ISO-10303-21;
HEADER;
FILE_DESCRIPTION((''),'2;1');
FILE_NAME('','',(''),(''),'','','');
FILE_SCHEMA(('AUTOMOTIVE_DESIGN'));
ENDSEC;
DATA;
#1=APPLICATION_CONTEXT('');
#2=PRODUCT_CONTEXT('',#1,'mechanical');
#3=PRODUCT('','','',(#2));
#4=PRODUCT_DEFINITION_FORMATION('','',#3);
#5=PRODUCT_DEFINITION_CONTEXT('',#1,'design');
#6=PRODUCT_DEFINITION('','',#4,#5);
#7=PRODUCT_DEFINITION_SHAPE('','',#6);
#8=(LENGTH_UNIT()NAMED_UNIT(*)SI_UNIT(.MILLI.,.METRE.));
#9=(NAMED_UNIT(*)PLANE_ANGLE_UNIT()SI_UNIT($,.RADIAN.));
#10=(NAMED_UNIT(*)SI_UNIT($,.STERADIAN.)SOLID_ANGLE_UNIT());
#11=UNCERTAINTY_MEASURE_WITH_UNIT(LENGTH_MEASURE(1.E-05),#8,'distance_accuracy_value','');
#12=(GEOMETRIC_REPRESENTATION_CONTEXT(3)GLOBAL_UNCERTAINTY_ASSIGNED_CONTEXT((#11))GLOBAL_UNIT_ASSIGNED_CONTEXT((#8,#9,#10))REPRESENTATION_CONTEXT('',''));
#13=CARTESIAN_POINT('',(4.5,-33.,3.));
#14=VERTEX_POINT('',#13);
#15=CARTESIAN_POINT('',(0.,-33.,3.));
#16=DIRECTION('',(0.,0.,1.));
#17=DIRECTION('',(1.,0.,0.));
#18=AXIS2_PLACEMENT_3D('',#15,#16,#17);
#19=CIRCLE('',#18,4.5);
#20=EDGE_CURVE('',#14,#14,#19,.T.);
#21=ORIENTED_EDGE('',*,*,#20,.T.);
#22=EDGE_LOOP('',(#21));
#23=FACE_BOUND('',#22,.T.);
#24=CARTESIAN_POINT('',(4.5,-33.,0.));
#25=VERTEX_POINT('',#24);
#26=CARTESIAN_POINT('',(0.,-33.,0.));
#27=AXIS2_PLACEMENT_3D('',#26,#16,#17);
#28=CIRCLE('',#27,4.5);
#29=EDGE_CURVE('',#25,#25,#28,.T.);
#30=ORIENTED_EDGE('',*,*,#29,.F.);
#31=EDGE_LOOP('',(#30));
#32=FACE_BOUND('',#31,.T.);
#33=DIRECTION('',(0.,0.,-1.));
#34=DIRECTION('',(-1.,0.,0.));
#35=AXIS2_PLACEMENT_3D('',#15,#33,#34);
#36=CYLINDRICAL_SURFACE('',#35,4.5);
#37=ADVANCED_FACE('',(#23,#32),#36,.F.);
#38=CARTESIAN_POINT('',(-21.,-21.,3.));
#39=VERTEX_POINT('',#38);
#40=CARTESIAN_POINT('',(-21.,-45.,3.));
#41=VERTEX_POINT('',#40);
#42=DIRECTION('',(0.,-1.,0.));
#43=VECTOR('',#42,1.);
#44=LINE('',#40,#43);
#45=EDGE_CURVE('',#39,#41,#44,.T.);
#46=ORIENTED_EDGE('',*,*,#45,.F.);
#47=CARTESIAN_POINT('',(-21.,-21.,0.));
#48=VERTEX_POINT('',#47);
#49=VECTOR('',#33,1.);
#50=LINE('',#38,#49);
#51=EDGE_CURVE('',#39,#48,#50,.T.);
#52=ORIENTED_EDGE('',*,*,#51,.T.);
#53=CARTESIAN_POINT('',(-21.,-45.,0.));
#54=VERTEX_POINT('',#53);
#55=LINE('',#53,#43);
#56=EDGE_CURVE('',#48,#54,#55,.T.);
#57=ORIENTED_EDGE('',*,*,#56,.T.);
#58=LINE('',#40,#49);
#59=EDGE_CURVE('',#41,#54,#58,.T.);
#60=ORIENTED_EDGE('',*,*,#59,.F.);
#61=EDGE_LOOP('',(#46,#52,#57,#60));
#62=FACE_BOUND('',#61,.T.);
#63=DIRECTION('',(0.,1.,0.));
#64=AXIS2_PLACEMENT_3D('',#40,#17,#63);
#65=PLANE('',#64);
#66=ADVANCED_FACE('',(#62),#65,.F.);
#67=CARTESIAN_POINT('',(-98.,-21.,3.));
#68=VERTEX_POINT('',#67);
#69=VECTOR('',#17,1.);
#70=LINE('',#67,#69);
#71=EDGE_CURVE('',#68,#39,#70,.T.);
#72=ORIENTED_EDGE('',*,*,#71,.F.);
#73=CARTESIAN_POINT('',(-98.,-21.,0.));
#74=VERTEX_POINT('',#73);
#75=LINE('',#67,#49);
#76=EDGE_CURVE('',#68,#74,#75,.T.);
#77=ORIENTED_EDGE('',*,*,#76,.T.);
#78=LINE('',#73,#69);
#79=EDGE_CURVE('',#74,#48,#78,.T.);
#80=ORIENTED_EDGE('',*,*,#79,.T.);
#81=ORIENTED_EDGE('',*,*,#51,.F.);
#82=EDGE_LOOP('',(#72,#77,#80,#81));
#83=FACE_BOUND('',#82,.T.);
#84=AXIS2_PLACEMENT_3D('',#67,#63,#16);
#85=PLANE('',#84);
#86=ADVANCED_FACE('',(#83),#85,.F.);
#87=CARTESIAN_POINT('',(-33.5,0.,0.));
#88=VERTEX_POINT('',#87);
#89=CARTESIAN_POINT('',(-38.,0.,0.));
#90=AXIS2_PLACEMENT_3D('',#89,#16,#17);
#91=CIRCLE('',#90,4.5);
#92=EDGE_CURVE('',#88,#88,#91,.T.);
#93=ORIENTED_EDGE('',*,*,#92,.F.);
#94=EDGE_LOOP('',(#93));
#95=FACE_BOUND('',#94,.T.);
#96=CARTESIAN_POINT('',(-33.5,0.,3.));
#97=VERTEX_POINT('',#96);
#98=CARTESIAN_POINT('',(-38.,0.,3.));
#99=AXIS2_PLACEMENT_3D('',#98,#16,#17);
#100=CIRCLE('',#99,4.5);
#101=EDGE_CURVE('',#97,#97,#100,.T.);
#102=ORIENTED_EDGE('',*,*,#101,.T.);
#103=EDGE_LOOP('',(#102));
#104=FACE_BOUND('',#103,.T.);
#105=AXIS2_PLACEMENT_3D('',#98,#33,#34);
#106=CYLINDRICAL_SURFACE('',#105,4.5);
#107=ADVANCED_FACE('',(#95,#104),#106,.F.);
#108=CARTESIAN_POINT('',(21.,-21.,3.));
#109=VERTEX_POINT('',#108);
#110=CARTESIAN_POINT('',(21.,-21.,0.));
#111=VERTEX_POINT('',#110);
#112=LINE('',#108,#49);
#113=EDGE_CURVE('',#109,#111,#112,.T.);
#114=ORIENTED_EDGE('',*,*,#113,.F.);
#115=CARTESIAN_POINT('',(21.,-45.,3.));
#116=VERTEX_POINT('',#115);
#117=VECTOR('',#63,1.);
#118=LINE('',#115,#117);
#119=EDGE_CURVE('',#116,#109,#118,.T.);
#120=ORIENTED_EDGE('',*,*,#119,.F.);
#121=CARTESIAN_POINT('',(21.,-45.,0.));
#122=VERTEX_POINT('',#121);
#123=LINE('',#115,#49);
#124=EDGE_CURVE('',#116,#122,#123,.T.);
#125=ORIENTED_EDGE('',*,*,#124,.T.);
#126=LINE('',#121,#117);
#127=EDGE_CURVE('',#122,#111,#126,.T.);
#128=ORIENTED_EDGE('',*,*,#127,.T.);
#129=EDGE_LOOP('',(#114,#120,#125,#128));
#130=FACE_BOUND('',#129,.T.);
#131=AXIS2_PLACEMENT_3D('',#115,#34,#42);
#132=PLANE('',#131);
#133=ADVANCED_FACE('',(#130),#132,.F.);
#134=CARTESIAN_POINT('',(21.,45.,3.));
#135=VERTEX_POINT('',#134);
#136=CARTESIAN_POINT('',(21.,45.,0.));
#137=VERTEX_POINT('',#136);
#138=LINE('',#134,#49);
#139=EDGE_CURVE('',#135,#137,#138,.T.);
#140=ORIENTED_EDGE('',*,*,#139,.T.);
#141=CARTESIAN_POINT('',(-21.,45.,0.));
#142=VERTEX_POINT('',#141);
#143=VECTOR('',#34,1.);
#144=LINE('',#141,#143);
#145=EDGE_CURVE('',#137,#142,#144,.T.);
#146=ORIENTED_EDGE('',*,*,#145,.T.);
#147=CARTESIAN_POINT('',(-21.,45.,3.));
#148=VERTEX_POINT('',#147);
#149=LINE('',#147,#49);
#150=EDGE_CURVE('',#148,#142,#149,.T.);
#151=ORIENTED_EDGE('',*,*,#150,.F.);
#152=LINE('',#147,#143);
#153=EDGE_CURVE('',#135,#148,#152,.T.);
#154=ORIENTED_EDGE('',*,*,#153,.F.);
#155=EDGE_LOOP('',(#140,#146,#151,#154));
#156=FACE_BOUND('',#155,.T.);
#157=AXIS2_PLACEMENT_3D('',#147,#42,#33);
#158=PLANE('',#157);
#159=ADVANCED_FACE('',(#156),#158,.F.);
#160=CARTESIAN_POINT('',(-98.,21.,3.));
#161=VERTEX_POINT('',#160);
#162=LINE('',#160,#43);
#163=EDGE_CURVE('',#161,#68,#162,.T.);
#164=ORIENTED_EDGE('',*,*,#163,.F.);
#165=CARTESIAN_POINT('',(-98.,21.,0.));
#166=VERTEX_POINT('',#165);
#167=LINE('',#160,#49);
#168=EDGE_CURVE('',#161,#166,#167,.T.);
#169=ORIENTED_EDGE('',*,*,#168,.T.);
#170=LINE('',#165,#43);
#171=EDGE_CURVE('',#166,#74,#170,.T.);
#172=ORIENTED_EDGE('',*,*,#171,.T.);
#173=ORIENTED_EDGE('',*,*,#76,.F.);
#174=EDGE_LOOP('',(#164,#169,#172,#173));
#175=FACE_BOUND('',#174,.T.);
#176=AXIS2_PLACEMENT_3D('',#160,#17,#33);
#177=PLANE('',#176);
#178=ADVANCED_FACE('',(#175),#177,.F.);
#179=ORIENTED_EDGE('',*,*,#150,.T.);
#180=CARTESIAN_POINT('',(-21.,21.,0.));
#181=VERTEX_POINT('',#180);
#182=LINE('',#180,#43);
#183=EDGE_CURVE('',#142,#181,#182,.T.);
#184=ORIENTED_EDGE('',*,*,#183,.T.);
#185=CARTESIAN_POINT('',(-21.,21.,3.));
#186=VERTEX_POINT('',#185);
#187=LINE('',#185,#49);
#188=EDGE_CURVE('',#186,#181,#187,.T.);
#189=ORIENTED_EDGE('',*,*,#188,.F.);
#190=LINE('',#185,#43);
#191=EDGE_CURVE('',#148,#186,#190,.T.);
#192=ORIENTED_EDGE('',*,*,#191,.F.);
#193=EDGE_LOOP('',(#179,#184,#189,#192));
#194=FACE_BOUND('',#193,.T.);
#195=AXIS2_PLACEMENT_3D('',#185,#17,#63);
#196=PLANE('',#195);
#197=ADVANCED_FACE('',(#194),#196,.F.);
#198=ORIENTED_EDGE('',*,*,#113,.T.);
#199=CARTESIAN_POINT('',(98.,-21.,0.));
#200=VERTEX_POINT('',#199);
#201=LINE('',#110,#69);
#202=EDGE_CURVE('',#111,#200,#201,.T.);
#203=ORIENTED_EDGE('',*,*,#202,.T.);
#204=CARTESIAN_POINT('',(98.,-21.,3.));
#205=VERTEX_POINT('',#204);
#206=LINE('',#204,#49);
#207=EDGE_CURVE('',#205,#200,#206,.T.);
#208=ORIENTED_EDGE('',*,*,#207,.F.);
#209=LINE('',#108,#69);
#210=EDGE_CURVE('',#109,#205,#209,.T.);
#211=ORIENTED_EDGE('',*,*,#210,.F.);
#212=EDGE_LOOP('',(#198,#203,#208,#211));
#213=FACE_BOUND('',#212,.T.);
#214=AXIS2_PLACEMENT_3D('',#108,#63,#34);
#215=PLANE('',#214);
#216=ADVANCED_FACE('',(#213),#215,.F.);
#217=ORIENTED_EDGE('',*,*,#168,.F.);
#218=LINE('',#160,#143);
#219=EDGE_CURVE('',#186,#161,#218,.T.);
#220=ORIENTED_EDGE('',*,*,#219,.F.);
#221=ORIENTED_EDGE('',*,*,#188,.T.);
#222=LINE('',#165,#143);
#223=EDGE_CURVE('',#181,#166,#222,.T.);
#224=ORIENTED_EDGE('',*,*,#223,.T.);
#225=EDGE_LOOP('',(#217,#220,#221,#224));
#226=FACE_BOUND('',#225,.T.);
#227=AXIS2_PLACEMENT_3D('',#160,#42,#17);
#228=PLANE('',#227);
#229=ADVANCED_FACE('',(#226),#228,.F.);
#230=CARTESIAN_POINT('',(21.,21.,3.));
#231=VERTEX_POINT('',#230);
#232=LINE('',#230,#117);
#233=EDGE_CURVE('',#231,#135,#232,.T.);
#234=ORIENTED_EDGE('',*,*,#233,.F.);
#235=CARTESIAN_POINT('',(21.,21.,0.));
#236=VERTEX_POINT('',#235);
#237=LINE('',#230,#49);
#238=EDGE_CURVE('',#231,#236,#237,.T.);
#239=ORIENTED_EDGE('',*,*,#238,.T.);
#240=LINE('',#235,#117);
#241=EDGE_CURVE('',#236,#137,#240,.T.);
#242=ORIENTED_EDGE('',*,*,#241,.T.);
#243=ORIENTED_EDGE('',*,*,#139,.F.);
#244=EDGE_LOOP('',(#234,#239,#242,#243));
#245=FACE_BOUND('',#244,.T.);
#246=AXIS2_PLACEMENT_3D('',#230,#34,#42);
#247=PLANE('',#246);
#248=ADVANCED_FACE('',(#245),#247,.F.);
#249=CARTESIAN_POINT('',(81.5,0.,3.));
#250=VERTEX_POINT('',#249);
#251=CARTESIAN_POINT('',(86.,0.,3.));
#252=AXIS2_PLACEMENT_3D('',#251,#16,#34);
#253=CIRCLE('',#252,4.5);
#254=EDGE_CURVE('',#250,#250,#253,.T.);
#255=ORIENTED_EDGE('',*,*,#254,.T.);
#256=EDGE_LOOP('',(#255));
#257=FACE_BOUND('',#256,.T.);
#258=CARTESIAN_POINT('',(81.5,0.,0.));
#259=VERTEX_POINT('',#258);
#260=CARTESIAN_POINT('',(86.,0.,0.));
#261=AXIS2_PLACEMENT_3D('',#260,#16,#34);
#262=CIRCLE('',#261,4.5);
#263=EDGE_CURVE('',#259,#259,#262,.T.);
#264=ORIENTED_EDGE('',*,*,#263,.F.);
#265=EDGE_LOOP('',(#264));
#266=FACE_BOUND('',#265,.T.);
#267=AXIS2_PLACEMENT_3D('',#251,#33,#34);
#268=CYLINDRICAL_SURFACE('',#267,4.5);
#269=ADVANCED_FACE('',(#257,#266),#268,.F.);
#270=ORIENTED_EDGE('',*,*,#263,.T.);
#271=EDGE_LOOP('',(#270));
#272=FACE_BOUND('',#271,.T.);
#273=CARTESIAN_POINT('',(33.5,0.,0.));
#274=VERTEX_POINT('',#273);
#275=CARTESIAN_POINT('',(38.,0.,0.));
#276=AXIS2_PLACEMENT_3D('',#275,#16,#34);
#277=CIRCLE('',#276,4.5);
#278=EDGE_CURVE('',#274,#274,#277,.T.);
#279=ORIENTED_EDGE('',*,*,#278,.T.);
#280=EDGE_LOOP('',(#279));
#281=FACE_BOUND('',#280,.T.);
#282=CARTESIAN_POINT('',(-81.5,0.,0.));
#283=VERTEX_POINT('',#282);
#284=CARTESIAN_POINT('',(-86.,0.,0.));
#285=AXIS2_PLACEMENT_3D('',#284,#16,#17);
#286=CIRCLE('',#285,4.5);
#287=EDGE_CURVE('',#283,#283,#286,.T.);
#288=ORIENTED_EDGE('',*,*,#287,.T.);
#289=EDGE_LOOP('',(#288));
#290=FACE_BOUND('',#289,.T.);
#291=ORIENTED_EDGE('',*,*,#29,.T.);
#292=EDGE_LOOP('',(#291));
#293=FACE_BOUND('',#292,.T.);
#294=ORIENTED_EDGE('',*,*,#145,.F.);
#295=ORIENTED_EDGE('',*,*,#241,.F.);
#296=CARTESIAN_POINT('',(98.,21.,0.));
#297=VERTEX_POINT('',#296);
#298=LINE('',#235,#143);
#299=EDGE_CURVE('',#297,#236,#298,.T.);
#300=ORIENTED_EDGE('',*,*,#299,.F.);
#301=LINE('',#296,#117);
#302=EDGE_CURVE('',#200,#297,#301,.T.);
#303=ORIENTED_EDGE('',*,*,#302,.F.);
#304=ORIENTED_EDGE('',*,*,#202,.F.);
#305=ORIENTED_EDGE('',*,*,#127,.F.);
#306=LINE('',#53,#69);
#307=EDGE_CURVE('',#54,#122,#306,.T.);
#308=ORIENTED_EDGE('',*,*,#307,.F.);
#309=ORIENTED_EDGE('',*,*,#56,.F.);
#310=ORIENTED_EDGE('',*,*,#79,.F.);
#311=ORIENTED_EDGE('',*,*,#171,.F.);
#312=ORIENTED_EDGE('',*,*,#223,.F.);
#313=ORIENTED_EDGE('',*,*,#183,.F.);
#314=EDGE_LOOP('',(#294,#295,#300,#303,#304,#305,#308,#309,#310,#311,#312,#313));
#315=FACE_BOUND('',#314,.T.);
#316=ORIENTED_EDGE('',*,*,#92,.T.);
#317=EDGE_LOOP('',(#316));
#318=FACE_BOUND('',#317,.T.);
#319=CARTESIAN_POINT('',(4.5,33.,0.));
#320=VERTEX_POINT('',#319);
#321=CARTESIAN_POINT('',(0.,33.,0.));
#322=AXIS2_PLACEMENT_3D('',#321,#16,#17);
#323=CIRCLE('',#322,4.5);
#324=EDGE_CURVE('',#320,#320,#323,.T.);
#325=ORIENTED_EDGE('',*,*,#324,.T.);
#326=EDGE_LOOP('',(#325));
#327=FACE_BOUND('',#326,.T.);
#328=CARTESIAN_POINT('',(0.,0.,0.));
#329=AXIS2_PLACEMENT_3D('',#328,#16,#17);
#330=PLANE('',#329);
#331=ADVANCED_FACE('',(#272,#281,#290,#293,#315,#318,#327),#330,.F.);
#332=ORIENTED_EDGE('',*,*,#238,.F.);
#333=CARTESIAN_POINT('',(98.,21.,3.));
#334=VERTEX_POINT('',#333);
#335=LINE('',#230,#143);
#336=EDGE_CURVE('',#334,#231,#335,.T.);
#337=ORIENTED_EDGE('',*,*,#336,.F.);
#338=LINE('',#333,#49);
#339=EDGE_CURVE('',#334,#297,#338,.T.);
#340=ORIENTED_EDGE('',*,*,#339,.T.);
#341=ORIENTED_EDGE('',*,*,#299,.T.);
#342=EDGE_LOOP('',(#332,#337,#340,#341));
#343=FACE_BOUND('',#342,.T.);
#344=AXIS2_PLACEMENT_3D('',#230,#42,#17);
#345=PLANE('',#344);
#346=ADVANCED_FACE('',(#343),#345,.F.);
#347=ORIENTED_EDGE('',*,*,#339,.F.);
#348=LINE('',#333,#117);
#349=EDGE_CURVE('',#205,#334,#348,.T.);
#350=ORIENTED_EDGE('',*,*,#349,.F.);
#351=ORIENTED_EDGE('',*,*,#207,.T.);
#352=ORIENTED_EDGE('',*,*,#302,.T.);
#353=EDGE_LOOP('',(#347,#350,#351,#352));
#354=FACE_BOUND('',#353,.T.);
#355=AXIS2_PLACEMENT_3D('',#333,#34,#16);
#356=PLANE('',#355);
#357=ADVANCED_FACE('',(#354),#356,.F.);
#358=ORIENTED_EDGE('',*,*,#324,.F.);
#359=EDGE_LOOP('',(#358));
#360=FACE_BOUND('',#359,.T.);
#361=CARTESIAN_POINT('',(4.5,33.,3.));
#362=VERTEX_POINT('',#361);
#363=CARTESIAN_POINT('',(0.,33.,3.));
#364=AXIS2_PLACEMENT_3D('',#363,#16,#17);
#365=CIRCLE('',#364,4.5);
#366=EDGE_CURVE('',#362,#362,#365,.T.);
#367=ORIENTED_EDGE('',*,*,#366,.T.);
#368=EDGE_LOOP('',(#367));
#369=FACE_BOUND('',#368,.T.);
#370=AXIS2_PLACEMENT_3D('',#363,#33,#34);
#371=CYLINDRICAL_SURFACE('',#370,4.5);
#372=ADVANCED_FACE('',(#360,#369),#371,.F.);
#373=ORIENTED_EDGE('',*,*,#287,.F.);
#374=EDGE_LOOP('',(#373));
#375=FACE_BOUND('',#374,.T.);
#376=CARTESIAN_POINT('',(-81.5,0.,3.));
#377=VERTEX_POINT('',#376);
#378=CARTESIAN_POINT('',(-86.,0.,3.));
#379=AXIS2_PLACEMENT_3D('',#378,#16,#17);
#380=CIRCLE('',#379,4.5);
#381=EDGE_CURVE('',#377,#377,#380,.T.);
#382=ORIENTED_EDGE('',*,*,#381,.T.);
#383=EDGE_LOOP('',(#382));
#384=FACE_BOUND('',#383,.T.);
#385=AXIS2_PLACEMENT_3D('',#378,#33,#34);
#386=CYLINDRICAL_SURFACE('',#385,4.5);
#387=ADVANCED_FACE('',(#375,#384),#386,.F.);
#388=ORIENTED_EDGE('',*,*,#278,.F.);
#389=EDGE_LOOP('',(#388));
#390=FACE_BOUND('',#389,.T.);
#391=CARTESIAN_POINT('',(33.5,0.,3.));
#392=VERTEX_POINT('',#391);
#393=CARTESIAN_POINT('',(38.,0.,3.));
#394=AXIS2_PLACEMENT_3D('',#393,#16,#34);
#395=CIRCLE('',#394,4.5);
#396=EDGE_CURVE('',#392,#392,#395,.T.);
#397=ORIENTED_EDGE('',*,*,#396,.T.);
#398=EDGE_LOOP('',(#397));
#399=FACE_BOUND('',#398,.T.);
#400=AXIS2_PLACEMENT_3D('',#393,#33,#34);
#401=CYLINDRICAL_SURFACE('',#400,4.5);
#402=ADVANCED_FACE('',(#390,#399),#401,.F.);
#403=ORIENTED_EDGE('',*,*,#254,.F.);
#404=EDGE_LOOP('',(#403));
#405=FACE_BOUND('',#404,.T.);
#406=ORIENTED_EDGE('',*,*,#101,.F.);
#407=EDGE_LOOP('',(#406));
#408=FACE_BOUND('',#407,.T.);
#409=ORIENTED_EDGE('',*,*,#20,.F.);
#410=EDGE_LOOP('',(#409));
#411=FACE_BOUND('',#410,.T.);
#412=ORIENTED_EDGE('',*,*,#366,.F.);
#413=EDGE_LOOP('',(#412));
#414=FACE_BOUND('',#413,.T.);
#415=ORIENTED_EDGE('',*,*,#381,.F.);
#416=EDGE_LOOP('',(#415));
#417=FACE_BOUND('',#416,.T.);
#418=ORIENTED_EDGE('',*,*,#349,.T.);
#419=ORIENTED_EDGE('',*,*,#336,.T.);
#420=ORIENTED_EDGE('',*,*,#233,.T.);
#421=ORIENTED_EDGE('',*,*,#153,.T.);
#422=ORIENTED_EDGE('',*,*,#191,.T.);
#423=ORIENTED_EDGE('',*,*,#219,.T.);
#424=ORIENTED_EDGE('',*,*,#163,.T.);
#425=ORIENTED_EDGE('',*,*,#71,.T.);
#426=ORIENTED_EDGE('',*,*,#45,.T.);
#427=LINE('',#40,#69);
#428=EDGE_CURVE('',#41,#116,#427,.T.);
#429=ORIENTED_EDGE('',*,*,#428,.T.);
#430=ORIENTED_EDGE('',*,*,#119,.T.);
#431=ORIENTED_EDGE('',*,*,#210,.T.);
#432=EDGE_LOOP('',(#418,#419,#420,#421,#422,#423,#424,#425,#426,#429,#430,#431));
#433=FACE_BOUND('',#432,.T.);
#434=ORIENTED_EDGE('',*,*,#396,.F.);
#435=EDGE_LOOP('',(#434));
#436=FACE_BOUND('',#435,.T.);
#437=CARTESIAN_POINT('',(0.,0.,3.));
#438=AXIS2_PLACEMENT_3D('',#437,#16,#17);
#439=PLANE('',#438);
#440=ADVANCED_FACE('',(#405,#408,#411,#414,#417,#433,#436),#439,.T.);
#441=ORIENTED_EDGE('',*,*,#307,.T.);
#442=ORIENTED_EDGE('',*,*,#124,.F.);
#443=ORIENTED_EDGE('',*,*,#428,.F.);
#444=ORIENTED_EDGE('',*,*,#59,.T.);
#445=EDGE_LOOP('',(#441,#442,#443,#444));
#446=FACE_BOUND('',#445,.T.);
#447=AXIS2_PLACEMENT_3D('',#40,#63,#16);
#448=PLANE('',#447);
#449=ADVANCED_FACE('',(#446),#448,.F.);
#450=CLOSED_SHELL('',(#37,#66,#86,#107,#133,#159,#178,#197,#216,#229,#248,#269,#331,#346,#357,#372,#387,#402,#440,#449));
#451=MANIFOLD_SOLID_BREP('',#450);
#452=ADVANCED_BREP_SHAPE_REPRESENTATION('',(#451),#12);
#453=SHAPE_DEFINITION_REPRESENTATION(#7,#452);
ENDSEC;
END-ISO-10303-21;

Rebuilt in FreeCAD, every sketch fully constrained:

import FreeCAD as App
import Part
import Sketcher


def add_polygon(sketch, points):
    """Adds a closed chain of lines whose ends are joined by coincident constraints."""
    first, n = sketch.GeometryCount, len(points)
    for a, b in zip(points, points[1:] + points[:1]):
        sketch.addGeometry(Part.LineSegment(App.Vector(*a, 0), App.Vector(*b, 0)), False)
    for i in range(n):
        sketch.addConstraint(Sketcher.Constraint("Coincident", first + i, 2, first + (i + 1) % n, 1))

doc = App.newDocument("Part")
body = doc.addObject("PartDesign::Body", "Body")

# Sketch on XY plane
sketch1 = body.newObject("Sketcher::SketchObject", "Sketch")
sketch1.AttachmentSupport = (doc.getObject("XY_Plane"), [""])
sketch1.MapMode = "FlatFace"
add_polygon(sketch1, [(21, -21), (98, -21), (98, 21), (21, 21), (21, 45), (-21, 45), (-21, 21), (-98, 21), (-98, -21), (-21, -21), (-21, -45), (21, -45)])  # lines 0-11
sketch1.addGeometry(Part.Circle(App.Vector(0, -33, 0), App.Vector(0, 0, 1), 4.5), False)  # 12
sketch1.addGeometry(Part.Circle(App.Vector(-86, 0, 0), App.Vector(0, 0, 1), 4.5), False)  # 13
sketch1.addGeometry(Part.Circle(App.Vector(-38, 0, 0), App.Vector(0, 0, 1), 4.5), False)  # 14
sketch1.addGeometry(Part.Circle(App.Vector(38, 0, 0), App.Vector(0, 0, 1), 4.5), False)  # 15
sketch1.addGeometry(Part.Circle(App.Vector(86, 0, 0), App.Vector(0, 0, 1), 4.5), False)  # 16
sketch1.addGeometry(Part.Circle(App.Vector(0, 33, 0), App.Vector(0, 0, 1), 4.5), False)  # 17
sketch1.addConstraint(Sketcher.Constraint("Horizontal", 0))
sketch1.addConstraint(Sketcher.Constraint("Vertical", 1))
sketch1.addConstraint(Sketcher.Constraint("Horizontal", 2))
sketch1.addConstraint(Sketcher.Constraint("Vertical", 3))
sketch1.addConstraint(Sketcher.Constraint("Horizontal", 4))
sketch1.addConstraint(Sketcher.Constraint("Vertical", 5))
sketch1.addConstraint(Sketcher.Constraint("Horizontal", 6))
sketch1.addConstraint(Sketcher.Constraint("Vertical", 7))
sketch1.addConstraint(Sketcher.Constraint("Horizontal", 8))
sketch1.addConstraint(Sketcher.Constraint("Vertical", 9))
sketch1.addConstraint(Sketcher.Constraint("Horizontal", 10))
sketch1.addConstraint(Sketcher.Constraint("Vertical", 11))
sketch1.addConstraint(Sketcher.Constraint("Equal", 12, 13))
sketch1.addConstraint(Sketcher.Constraint("Equal", 13, 14))
sketch1.addConstraint(Sketcher.Constraint("Equal", 14, 15))
sketch1.addConstraint(Sketcher.Constraint("Equal", 15, 16))
sketch1.addConstraint(Sketcher.Constraint("Equal", 16, 17))
sketch1.addConstraint(Sketcher.Constraint("Symmetric", 14, 3, 15, 3, -1, 1))
sketch1.addConstraint(Sketcher.Constraint("Symmetric", 13, 3, 16, 3, -1, 1))
sketch1.addConstraint(Sketcher.Constraint("Symmetric", 12, 3, 17, 3, -1, 1))
sketch1.addConstraint(Sketcher.Constraint("Symmetric", 0, 2, 6, 2, -1, 1))
sketch1.addConstraint(Sketcher.Constraint("Symmetric", 2, 2, 8, 2, -1, 1))
sketch1.addConstraint(Sketcher.Constraint("Symmetric", 4, 2, 10, 2, -1, 1))
sketch1.addConstraint(Sketcher.Constraint("Symmetric", 2, 2, 5, 2, -2))
sketch1.addConstraint(Sketcher.Constraint("PointOnObject", 12, 3, -2))
sketch1.addConstraint(Sketcher.Constraint("PointOnObject", 13, 3, -1))
sketch1.addConstraint(Sketcher.Constraint("PointOnObject", 14, 3, -1))
sketch1.addConstraint(Sketcher.Constraint("Equal", 10, 1))
sketch1.addConstraint(Sketcher.Constraint("Diameter", 12, 9.0))
sketch1.addConstraint(Sketcher.Constraint("DistanceX", 0, 1, 0, 2, 77.0))
sketch1.addConstraint(Sketcher.Constraint("DistanceX", 4, 2, 4, 1, 42.0))
sketch1.addConstraint(Sketcher.Constraint("DistanceY", 3, 1, 3, 2, 24.0))
sketch1.addConstraint(Sketcher.Constraint("DistanceY", 12, 3, -1, 1, 33.0))
sketch1.addConstraint(Sketcher.Constraint("DistanceX", 13, 3, -1, 1, 86.0))
sketch1.addConstraint(Sketcher.Constraint("DistanceX", 14, 3, -1, 1, 38.0))
pad1 = body.newObject("PartDesign::Pad", "Pad")
pad1.Profile = sketch1
pad1.Length = 3

doc.recompute()
